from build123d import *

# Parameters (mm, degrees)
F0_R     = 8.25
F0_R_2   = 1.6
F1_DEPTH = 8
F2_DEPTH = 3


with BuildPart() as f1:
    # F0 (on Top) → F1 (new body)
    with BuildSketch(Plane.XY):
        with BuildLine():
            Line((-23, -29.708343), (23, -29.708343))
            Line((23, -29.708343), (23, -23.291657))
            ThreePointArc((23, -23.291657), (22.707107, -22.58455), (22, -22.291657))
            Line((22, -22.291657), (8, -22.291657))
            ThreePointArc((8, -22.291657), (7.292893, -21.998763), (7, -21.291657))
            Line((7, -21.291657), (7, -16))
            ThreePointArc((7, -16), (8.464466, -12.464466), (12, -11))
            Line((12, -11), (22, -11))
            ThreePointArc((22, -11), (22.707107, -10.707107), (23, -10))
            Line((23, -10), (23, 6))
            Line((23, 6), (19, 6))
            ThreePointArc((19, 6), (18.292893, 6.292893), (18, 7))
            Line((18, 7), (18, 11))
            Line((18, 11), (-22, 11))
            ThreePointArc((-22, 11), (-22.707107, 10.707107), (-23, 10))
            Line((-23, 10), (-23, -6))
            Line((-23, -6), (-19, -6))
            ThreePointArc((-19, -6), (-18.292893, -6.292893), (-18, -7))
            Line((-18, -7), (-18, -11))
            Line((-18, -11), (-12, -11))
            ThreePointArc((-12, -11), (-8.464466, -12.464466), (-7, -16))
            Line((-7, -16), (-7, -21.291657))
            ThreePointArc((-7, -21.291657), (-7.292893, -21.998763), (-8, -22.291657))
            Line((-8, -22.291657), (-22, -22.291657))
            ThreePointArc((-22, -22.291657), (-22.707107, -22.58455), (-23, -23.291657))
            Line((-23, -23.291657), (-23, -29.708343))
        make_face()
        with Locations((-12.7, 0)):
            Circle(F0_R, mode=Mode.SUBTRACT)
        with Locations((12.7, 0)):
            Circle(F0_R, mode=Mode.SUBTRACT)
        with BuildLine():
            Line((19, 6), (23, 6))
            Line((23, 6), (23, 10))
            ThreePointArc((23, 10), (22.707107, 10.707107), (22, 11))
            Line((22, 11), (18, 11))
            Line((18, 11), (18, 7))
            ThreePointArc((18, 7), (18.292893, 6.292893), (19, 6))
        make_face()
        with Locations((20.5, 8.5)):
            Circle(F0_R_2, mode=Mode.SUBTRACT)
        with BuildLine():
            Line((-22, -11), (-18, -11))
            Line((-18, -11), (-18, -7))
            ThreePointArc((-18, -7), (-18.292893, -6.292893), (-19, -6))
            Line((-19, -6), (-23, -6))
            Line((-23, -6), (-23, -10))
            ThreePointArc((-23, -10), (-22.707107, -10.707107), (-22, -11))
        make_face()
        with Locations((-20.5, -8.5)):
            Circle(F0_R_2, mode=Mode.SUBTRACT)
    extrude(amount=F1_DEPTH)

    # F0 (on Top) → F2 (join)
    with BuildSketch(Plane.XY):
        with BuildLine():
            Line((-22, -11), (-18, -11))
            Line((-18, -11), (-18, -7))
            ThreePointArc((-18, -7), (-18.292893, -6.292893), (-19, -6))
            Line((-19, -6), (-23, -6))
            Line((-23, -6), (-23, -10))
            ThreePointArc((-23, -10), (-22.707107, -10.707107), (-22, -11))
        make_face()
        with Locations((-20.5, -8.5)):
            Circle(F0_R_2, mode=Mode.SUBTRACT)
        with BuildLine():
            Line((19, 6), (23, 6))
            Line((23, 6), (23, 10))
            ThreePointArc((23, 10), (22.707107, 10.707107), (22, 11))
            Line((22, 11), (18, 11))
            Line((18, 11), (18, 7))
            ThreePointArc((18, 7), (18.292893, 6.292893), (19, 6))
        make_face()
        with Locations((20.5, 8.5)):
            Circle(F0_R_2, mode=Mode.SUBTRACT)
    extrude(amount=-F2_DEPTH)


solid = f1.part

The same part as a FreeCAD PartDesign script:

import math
import FreeCAD as App
import Part
import Sketcher

V = App.Vector

doc = App.newDocument("Part")
params = doc.addObject("Spreadsheet::Sheet", "Params")
for row, (alias, value) in enumerate([
    ("sketch1_radius", "0.999999 mm"),
    ("sketch1_radius2", "5 mm"),
    ("sketch1_diameter", "3.2 mm"),
    ("sketch1_diameter2", "16.5 mm"),
    ("sketch1_width", "46 mm"),
    ("pad1_length", "8 mm"),
    ("sketch2_radius", "0.999999 mm"),
    ("sketch2_diameter", "3.2 mm"),
    ("sketch2_width", "4 mm"),
    ("pad2_length", "3 mm"),
], start=1):
    params.set(f"A{row}", alias)
    params.set(f"B{row}", "=" + value)
    params.setAlias(f"B{row}", alias)

body = doc.addObject("PartDesign::Body", "Body")

# Sketch on XY plane
sketch1 = doc.addObject("Sketcher::SketchObject", "Sketch")
body.addObject(sketch1)
sketch1.AttachmentSupport = (doc.XY_Plane, [""])
sketch1.MapMode = "FlatFace"
sketch1.addGeometry(Part.LineSegment(V(-23, -29.708343, 0), V(23, -29.708343, 0)), False)
sketch1.addGeometry(Part.LineSegment(V(23, -29.708343, 0), V(23, -23.291657, 0)), False)
sketch1.addGeometry(Part.ArcOfCircle(Part.Circle(V(22.000001, -23.291656, 0), V(0, 0, 1), 0.999999), math.radians(-0.000043), math.radians(90.000043)), False)
sketch1.addGeometry(Part.LineSegment(V(22, -22.291657, 0), V(8, -22.291657, 0)), False)
sketch1.addGeometry(Part.ArcOfCircle(Part.Circle(V(8.000001, -21.291656, 0), V(0, 0, 1), 1.000001), math.radians(-179.999945), math.radians(-90.000055)), False)
sketch1.addGeometry(Part.LineSegment(V(7, -21.291657, 0), V(7, -16, 0)), False)
sketch1.addGeometry(Part.ArcOfCircle(Part.Circle(V(12, -16, 0), V(0, 0, 1), 5), math.radians(89.999996), math.radians(180.000004)), False)
sketch1.addGeometry(Part.LineSegment(V(12, -11, 0), V(22, -11, 0)), False)
sketch1.addGeometry(Part.ArcOfCircle(Part.Circle(V(22.000001, -10.000001, 0), V(0, 0, 1), 0.999999), math.radians(-90.000043), math.radians(0.000043)), False)
sketch1.addGeometry(Part.LineSegment(V(23, -10, 0), V(23, 10, 0)), False)
sketch1.addGeometry(Part.ArcOfCircle(Part.Circle(V(22.000001, 10.000001, 0), V(0, 0, 1), 0.999999), math.radians(-0.000043), math.radians(90.000043)), False)
sketch1.addGeometry(Part.LineSegment(V(22, 11, 0), V(-22, 11, 0)), False)
sketch1.addGeometry(Part.ArcOfCircle(Part.Circle(V(-22.000001, 10.000001, 0), V(0, 0, 1), 0.999999), math.radians(89.999957), math.radians(180.000043)), False)
sketch1.addGeometry(Part.LineSegment(V(-23, 10, 0), V(-23, -10, 0)), False)
sketch1.addGeometry(Part.ArcOfCircle(Part.Circle(V(-22.000001, -10.000001, 0), V(0, 0, 1), 0.999999), math.radians(179.999957), math.radians(270.000043)), False)
sketch1.addGeometry(Part.LineSegment(V(-22, -11, 0), V(-12, -11, 0)), False)
sketch1.addGeometry(Part.ArcOfCircle(Part.Circle(V(-12, -16, 0), V(0, 0, 1), 5), math.radians(-0.000004), math.radians(90.000004)), False)
sketch1.addGeometry(Part.LineSegment(V(-7, -16, 0), V(-7, -21.291657, 0)), False)
sketch1.addGeometry(Part.ArcOfCircle(Part.Circle(V(-8.000001, -21.291656, 0), V(0, 0, 1), 1.000001), math.radians(-89.999945), math.radians(-0.000055)), False)
sketch1.addGeometry(Part.LineSegment(V(-8, -22.291657, 0), V(-22, -22.291657, 0)), False)
sketch1.addGeometry(Part.ArcOfCircle(Part.Circle(V(-22.000001, -23.291656, 0), V(0, 0, 1), 0.999999), math.radians(89.999957), math.radians(180.000043)), False)
sketch1.addGeometry(Part.LineSegment(V(-23, -23.291657, 0), V(-23, -29.708343, 0)), False)
sketch1.addGeometry(Part.Circle(V(-20.5, -8.5, 0), V(0, 0, 1), 1.6), False)
sketch1.addGeometry(Part.Circle(V(-12.7, 0, 0), V(0, 0, 1), 8.25), False)
sketch1.addGeometry(Part.Circle(V(12.7, 0, 0), V(0, 0, 1), 8.25), False)
sketch1.addGeometry(Part.Circle(V(20.5, 8.5, 0), V(0, 0, 1), 1.6), False)
sketch1.addConstraint(Sketcher.Constraint("Coincident", 0, 2, 1, 1))
sketch1.addConstraint(Sketcher.Constraint("Tangent", 1, 2, 2, 1))
sketch1.addConstraint(Sketcher.Constraint("Tangent", 2, 2, 3, 1))
sketch1.addConstraint(Sketcher.Constraint("Tangent", 3, 2, 4, 2))
sketch1.addConstraint(Sketcher.Constraint("Tangent", 4, 1, 5, 1))
sketch1.addConstraint(Sketcher.Constraint("Tangent", 5, 2, 6, 2))
sketch1.addConstraint(Sketcher.Constraint("Tangent", 6, 1, 7, 1))
sketch1.addConstraint(Sketcher.Constraint("Tangent", 7, 2, 8, 1))
sketch1.addConstraint(Sketcher.Constraint("Tangent", 8, 2, 9, 1))
sketch1.addConstraint(Sketcher.Constraint("Tangent", 9, 2, 10, 1))
sketch1.addConstraint(Sketcher.Constraint("Tangent", 10, 2, 11, 1))
sketch1.addConstraint(Sketcher.Constraint("Tangent", 11, 2, 12, 1))
sketch1.addConstraint(Sketcher.Constraint("Tangent", 12, 2, 13, 1))
sketch1.addConstraint(Sketcher.Constraint("Tangent", 13, 2, 14, 1))
sketch1.addConstraint(Sketcher.Constraint("Tangent", 14, 2, 15, 1))
sketch1.addConstraint(Sketcher.Constraint("Tangent", 15, 2, 16, 2))
sketch1.addConstraint(Sketcher.Constraint("Tangent", 16, 1, 17, 1))
sketch1.addConstraint(Sketcher.Constraint("Tangent", 17, 2, 18, 2))
sketch1.addConstraint(Sketcher.Constraint("Tangent", 18, 1, 19, 1))
sketch1.addConstraint(Sketcher.Constraint("Tangent", 19, 2, 20, 1))
sketch1.addConstraint(Sketcher.Constraint("Tangent", 20, 2, 21, 1))
sketch1.addConstraint(Sketcher.Constraint("Coincident", 21, 2, 0, 1))
sketch1.addConstraint(Sketcher.Constraint("Horizontal", 0))
sketch1.addConstraint(Sketcher.Constraint("Vertical", 1))
sketch1.addConstraint(Sketcher.Constraint("Horizontal", 3))
sketch1.addConstraint(Sketcher.Constraint("Vertical", 5))
sketch1.addConstraint(Sketcher.Constraint("Horizontal", 7))
sketch1.addConstraint(Sketcher.Constraint("Vertical", 9))
sketch1.addConstraint(Sketcher.Constraint("Horizontal", 11))
sketch1.addConstraint(Sketcher.Constraint("Vertical", 13))
sketch1.addConstraint(Sketcher.Constraint("Horizontal", 15))
sketch1.addConstraint(Sketcher.Constraint("Vertical", 17))
sketch1.addConstraint(Sketcher.Constraint("Horizontal", 19))
sketch1.addConstraint(Sketcher.Constraint("Vertical", 21))
sketch1.addConstraint(Sketcher.Constraint("Equal", 2, 4))
sketch1.addConstraint(Sketcher.Constraint("Equal", 4, 8))
sketch1.addConstraint(Sketcher.Constraint("Equal", 8, 10))
sketch1.addConstraint(Sketcher.Constraint("Equal", 10, 12))
sketch1.addConstraint(Sketcher.Constraint("Equal", 12, 14))
sketch1.addConstraint(Sketcher.Constraint("Equal", 6, 16))
sketch1.addConstraint(Sketcher.Constraint("Equal", 14, 18))
sketch1.addConstraint(Sketcher.Constraint("Equal", 18, 20))
sketch1.addConstraint(Sketcher.Constraint("Equal", 23, 24))
sketch1.addConstraint(Sketcher.Constraint("Equal", 22, 25))
sketch1.addConstraint(Sketcher.Constraint("Symmetric", 8, 3, 12, 3, -1, 1))
sketch1.addConstraint(Sketcher.Constraint("Symmetric", 23, 3, 24, 3, -1, 1))
sketch1.addConstraint(Sketcher.Constraint("Symmetric", 22, 3, 25, 3, -1, 1))
sketch1.addConstraint(Sketcher.Constraint("Symmetric", 6, 3, 16, 3, -2))
sketch1.addConstraint(Sketcher.Constraint("Symmetric", 2, 3, 20, 3, -2))
sketch1.addConstraint(Sketcher.Constraint("PointOnObject", 23, 3, -1))
sketch1.addConstraint(Sketcher.Constraint("Vertical", 2, 3, 8, 3))
sketch1.addConstraint(Sketcher.Constraint("Radius", 2, 0.999999))
sketch1.addConstraint(Sketcher.Constraint("Radius", 6, 5.0))
sketch1.addConstraint(Sketcher.Constraint("Diameter", 22, 3.2))
sketch1.addConstraint(Sketcher.Constraint("Diameter", 23, 16.5))
sketch1.addConstraint(Sketcher.Constraint("DistanceX", 0, 1, 0, 2, 46.0))
sketch1.addConstraint(Sketcher.Constraint("DistanceX", 3, 2, 3, 1, 14.0))
sketch1.addConstraint(Sketcher.Constraint("DistanceY", 9, 1, 9, 2, 20.0))
sketch1.addConstraint(Sketcher.Constraint("DistanceX", 22, 3, -1, 1, 20.5))
sketch1.addConstraint(Sketcher.Constraint("DistanceY", 22, 3, -1, 1, 8.5))
sketch1.addConstraint(Sketcher.Constraint("DistanceX", 23, 3, -1, 1, 12.7))
sketch1.addConstraint(Sketcher.Constraint("DistanceY", 1, 1, 1, 2, 6.416686))
sketch1.addConstraint(Sketcher.Constraint("DistanceY", 5, 1, 5, 2, 5.291657))
sketch1.setExpression("Constraints[51]", "Params.sketch1_radius")
sketch1.setExpression("Constraints[52]", "Params.sketch1_radius2")
sketch1.setExpression("Constraints[53]", "Params.sketch1_diameter")
sketch1.setExpression("Constraints[54]", "Params.sketch1_diameter2")
sketch1.setExpression("Constraints[55]", "Params.sketch1_width")
pad1 = doc.addObject("PartDesign::Pad", "Pad")
body.addObject(pad1)
pad1.Profile = sketch1
pad1.setExpression("Length", "Params.pad1_length")

# Sketch on XY plane
sketch2 = doc.addObject("Sketcher::SketchObject", "Sketch001")
body.addObject(sketch2)
sketch2.AttachmentSupport = (doc.XY_Plane, [""])
sketch2.MapMode = "FlatFace"
sketch2.addGeometry(Part.LineSegment(V(-22, -11, 0), V(-18, -11, 0)), False)
sketch2.addGeometry(Part.LineSegment(V(-18, -11, 0), V(-18, -7, 0)), False)
sketch2.addGeometry(Part.ArcOfCircle(Part.Circle(V(-18.999999, -6.999999, 0), V(0, 0, 1), 0.999999), math.radians(-0.000043), math.radians(90.000043)), False)
sketch2.addGeometry(Part.LineSegment(V(-19, -6, 0), V(-23, -6, 0)), False)
sketch2.addGeometry(Part.LineSegment(V(-23, -6, 0), V(-23, -10, 0)), False)
sketch2.addGeometry(Part.ArcOfCircle(Part.Circle(V(-22.000001, -10.000001, 0), V(0, 0, 1), 0.999999), math.radians(179.999957), math.radians(270.000043)), False)
sketch2.addGeometry(Part.Circle(V(-20.5, -8.5, 0), V(0, 0, 1), 1.6), False)
sketch2.addGeometry(Part.LineSegment(V(19, 6, 0), V(23, 6, 0)), False)
sketch2.addGeometry(Part.LineSegment(V(23, 6, 0), V(23, 10, 0)), False)
sketch2.addGeometry(Part.ArcOfCircle(Part.Circle(V(22.000001, 10.000001, 0), V(0, 0, 1), 0.999999), math.radians(-0.000043), math.radians(90.000043)), False)
sketch2.addGeometry(Part.LineSegment(V(22, 11, 0), V(18, 11, 0)), False)
sketch2.addGeometry(Part.LineSegment(V(18, 11, 0), V(18, 7, 0)), False)
sketch2.addGeometry(Part.ArcOfCircle(Part.Circle(V(18.999999, 6.999999, 0), V(0, 0, 1), 0.999999), math.radians(179.999957), math.radians(270.000043)), False)
sketch2.addGeometry(Part.Circle(V(20.5, 8.5, 0), V(0, 0, 1), 1.6), False)
sketch2.addConstraint(Sketcher.Constraint("Coincident", 0, 2, 1, 1))
sketch2.addConstraint(Sketcher.Constraint("Tangent", 1, 2, 2, 1))
sketch2.addConstraint(Sketcher.Constraint("Tangent", 2, 2, 3, 1))
sketch2.addConstraint(Sketcher.Constraint("Coincident", 3, 2, 4, 1))
sketch2.addConstraint(Sketcher.Constraint("Tangent", 4, 2, 5, 1))
sketch2.addConstraint(Sketcher.Constraint("Tangent", 5, 2, 0, 1))
sketch2.addConstraint(Sketcher.Constraint("Coincident", 7, 2, 8, 1))
sketch2.addConstraint(Sketcher.Constraint("Tangent", 8, 2, 9, 1))
sketch2.addConstraint(Sketcher.Constraint("Tangent", 9, 2, 10, 1))
sketch2.addConstraint(Sketcher.Constraint("Coincident", 10, 2, 11, 1))
sketch2.addConstraint(Sketcher.Constraint("Tangent", 11, 2, 12, 1))
sketch2.addConstraint(Sketcher.Constraint("Tangent", 12, 2, 7, 1))
sketch2.addConstraint(Sketcher.Constraint("Horizontal", 0))
sketch2.addConstraint(Sketcher.Constraint("Vertical", 1))
sketch2.addConstraint(Sketcher.Constraint("Horizontal", 3))
sketch2.addConstraint(Sketcher.Constraint("Vertical", 4))
sketch2.addConstraint(Sketcher.Constraint("Horizontal", 7))
sketch2.addConstraint(Sketcher.Constraint("Vertical", 8))
sketch2.addConstraint(Sketcher.Constraint("Horizontal", 10))
sketch2.addConstraint(Sketcher.Constraint("Vertical", 11))
sketch2.addConstraint(Sketcher.Constraint("Equal", 2, 5))
sketch2.addConstraint(Sketcher.Constraint("Equal", 5, 9))
sketch2.addConstraint(Sketcher.Constraint("Equal", 9, 12))
sketch2.addConstraint(Sketcher.Constraint("Equal", 6, 13))
sketch2.addConstraint(Sketcher.Constraint("Symmetric", 5, 3, 9, 3, -1, 1))
sketch2.addConstraint(Sketcher.Constraint("Symmetric", 2, 3, 12, 3, -1, 1))
sketch2.addConstraint(Sketcher.Constraint("Symmetric", 6, 3, 13, 3, -1, 1))
sketch2.addConstraint(Sketcher.Constraint("Equal", 10, 1))
sketch2.addConstraint(Sketcher.Constraint("Radius", 2, 0.999999))
sketch2.addConstraint(Sketcher.Constraint("Diameter", 6, 3.2))
sketch2.addConstraint(Sketcher.Constraint("DistanceX", 0, 1, 0, 2, 4.0))
sketch2.addConstraint(Sketcher.Constraint("DistanceX", 2, 3, -1, 1, 18.999999))
sketch2.addConstraint(Sketcher.Constraint("DistanceY", 2, 3, -1, 1, 6.999999))
sketch2.addConstraint(Sketcher.Constraint("DistanceX", 6, 3, 13, 3, 41.0))
sketch2.addConstraint(Sketcher.Constraint("DistanceY", 6, 3, 13, 3, 17.0))
sketch2.setExpression("Constraints[28]", "Params.sketch2_radius")
sketch2.setExpression("Constraints[29]", "Params.sketch2_diameter")
sketch2.setExpression("Constraints[30]", "Params.sketch2_width")
pad2 = doc.addObject("PartDesign::Pad", "Pad001")
body.addObject(pad2)
pad2.Profile = sketch2
pad2.setExpression("Length", "Params.pad2_length")
pad2.Reversed = True

doc.recompute()
